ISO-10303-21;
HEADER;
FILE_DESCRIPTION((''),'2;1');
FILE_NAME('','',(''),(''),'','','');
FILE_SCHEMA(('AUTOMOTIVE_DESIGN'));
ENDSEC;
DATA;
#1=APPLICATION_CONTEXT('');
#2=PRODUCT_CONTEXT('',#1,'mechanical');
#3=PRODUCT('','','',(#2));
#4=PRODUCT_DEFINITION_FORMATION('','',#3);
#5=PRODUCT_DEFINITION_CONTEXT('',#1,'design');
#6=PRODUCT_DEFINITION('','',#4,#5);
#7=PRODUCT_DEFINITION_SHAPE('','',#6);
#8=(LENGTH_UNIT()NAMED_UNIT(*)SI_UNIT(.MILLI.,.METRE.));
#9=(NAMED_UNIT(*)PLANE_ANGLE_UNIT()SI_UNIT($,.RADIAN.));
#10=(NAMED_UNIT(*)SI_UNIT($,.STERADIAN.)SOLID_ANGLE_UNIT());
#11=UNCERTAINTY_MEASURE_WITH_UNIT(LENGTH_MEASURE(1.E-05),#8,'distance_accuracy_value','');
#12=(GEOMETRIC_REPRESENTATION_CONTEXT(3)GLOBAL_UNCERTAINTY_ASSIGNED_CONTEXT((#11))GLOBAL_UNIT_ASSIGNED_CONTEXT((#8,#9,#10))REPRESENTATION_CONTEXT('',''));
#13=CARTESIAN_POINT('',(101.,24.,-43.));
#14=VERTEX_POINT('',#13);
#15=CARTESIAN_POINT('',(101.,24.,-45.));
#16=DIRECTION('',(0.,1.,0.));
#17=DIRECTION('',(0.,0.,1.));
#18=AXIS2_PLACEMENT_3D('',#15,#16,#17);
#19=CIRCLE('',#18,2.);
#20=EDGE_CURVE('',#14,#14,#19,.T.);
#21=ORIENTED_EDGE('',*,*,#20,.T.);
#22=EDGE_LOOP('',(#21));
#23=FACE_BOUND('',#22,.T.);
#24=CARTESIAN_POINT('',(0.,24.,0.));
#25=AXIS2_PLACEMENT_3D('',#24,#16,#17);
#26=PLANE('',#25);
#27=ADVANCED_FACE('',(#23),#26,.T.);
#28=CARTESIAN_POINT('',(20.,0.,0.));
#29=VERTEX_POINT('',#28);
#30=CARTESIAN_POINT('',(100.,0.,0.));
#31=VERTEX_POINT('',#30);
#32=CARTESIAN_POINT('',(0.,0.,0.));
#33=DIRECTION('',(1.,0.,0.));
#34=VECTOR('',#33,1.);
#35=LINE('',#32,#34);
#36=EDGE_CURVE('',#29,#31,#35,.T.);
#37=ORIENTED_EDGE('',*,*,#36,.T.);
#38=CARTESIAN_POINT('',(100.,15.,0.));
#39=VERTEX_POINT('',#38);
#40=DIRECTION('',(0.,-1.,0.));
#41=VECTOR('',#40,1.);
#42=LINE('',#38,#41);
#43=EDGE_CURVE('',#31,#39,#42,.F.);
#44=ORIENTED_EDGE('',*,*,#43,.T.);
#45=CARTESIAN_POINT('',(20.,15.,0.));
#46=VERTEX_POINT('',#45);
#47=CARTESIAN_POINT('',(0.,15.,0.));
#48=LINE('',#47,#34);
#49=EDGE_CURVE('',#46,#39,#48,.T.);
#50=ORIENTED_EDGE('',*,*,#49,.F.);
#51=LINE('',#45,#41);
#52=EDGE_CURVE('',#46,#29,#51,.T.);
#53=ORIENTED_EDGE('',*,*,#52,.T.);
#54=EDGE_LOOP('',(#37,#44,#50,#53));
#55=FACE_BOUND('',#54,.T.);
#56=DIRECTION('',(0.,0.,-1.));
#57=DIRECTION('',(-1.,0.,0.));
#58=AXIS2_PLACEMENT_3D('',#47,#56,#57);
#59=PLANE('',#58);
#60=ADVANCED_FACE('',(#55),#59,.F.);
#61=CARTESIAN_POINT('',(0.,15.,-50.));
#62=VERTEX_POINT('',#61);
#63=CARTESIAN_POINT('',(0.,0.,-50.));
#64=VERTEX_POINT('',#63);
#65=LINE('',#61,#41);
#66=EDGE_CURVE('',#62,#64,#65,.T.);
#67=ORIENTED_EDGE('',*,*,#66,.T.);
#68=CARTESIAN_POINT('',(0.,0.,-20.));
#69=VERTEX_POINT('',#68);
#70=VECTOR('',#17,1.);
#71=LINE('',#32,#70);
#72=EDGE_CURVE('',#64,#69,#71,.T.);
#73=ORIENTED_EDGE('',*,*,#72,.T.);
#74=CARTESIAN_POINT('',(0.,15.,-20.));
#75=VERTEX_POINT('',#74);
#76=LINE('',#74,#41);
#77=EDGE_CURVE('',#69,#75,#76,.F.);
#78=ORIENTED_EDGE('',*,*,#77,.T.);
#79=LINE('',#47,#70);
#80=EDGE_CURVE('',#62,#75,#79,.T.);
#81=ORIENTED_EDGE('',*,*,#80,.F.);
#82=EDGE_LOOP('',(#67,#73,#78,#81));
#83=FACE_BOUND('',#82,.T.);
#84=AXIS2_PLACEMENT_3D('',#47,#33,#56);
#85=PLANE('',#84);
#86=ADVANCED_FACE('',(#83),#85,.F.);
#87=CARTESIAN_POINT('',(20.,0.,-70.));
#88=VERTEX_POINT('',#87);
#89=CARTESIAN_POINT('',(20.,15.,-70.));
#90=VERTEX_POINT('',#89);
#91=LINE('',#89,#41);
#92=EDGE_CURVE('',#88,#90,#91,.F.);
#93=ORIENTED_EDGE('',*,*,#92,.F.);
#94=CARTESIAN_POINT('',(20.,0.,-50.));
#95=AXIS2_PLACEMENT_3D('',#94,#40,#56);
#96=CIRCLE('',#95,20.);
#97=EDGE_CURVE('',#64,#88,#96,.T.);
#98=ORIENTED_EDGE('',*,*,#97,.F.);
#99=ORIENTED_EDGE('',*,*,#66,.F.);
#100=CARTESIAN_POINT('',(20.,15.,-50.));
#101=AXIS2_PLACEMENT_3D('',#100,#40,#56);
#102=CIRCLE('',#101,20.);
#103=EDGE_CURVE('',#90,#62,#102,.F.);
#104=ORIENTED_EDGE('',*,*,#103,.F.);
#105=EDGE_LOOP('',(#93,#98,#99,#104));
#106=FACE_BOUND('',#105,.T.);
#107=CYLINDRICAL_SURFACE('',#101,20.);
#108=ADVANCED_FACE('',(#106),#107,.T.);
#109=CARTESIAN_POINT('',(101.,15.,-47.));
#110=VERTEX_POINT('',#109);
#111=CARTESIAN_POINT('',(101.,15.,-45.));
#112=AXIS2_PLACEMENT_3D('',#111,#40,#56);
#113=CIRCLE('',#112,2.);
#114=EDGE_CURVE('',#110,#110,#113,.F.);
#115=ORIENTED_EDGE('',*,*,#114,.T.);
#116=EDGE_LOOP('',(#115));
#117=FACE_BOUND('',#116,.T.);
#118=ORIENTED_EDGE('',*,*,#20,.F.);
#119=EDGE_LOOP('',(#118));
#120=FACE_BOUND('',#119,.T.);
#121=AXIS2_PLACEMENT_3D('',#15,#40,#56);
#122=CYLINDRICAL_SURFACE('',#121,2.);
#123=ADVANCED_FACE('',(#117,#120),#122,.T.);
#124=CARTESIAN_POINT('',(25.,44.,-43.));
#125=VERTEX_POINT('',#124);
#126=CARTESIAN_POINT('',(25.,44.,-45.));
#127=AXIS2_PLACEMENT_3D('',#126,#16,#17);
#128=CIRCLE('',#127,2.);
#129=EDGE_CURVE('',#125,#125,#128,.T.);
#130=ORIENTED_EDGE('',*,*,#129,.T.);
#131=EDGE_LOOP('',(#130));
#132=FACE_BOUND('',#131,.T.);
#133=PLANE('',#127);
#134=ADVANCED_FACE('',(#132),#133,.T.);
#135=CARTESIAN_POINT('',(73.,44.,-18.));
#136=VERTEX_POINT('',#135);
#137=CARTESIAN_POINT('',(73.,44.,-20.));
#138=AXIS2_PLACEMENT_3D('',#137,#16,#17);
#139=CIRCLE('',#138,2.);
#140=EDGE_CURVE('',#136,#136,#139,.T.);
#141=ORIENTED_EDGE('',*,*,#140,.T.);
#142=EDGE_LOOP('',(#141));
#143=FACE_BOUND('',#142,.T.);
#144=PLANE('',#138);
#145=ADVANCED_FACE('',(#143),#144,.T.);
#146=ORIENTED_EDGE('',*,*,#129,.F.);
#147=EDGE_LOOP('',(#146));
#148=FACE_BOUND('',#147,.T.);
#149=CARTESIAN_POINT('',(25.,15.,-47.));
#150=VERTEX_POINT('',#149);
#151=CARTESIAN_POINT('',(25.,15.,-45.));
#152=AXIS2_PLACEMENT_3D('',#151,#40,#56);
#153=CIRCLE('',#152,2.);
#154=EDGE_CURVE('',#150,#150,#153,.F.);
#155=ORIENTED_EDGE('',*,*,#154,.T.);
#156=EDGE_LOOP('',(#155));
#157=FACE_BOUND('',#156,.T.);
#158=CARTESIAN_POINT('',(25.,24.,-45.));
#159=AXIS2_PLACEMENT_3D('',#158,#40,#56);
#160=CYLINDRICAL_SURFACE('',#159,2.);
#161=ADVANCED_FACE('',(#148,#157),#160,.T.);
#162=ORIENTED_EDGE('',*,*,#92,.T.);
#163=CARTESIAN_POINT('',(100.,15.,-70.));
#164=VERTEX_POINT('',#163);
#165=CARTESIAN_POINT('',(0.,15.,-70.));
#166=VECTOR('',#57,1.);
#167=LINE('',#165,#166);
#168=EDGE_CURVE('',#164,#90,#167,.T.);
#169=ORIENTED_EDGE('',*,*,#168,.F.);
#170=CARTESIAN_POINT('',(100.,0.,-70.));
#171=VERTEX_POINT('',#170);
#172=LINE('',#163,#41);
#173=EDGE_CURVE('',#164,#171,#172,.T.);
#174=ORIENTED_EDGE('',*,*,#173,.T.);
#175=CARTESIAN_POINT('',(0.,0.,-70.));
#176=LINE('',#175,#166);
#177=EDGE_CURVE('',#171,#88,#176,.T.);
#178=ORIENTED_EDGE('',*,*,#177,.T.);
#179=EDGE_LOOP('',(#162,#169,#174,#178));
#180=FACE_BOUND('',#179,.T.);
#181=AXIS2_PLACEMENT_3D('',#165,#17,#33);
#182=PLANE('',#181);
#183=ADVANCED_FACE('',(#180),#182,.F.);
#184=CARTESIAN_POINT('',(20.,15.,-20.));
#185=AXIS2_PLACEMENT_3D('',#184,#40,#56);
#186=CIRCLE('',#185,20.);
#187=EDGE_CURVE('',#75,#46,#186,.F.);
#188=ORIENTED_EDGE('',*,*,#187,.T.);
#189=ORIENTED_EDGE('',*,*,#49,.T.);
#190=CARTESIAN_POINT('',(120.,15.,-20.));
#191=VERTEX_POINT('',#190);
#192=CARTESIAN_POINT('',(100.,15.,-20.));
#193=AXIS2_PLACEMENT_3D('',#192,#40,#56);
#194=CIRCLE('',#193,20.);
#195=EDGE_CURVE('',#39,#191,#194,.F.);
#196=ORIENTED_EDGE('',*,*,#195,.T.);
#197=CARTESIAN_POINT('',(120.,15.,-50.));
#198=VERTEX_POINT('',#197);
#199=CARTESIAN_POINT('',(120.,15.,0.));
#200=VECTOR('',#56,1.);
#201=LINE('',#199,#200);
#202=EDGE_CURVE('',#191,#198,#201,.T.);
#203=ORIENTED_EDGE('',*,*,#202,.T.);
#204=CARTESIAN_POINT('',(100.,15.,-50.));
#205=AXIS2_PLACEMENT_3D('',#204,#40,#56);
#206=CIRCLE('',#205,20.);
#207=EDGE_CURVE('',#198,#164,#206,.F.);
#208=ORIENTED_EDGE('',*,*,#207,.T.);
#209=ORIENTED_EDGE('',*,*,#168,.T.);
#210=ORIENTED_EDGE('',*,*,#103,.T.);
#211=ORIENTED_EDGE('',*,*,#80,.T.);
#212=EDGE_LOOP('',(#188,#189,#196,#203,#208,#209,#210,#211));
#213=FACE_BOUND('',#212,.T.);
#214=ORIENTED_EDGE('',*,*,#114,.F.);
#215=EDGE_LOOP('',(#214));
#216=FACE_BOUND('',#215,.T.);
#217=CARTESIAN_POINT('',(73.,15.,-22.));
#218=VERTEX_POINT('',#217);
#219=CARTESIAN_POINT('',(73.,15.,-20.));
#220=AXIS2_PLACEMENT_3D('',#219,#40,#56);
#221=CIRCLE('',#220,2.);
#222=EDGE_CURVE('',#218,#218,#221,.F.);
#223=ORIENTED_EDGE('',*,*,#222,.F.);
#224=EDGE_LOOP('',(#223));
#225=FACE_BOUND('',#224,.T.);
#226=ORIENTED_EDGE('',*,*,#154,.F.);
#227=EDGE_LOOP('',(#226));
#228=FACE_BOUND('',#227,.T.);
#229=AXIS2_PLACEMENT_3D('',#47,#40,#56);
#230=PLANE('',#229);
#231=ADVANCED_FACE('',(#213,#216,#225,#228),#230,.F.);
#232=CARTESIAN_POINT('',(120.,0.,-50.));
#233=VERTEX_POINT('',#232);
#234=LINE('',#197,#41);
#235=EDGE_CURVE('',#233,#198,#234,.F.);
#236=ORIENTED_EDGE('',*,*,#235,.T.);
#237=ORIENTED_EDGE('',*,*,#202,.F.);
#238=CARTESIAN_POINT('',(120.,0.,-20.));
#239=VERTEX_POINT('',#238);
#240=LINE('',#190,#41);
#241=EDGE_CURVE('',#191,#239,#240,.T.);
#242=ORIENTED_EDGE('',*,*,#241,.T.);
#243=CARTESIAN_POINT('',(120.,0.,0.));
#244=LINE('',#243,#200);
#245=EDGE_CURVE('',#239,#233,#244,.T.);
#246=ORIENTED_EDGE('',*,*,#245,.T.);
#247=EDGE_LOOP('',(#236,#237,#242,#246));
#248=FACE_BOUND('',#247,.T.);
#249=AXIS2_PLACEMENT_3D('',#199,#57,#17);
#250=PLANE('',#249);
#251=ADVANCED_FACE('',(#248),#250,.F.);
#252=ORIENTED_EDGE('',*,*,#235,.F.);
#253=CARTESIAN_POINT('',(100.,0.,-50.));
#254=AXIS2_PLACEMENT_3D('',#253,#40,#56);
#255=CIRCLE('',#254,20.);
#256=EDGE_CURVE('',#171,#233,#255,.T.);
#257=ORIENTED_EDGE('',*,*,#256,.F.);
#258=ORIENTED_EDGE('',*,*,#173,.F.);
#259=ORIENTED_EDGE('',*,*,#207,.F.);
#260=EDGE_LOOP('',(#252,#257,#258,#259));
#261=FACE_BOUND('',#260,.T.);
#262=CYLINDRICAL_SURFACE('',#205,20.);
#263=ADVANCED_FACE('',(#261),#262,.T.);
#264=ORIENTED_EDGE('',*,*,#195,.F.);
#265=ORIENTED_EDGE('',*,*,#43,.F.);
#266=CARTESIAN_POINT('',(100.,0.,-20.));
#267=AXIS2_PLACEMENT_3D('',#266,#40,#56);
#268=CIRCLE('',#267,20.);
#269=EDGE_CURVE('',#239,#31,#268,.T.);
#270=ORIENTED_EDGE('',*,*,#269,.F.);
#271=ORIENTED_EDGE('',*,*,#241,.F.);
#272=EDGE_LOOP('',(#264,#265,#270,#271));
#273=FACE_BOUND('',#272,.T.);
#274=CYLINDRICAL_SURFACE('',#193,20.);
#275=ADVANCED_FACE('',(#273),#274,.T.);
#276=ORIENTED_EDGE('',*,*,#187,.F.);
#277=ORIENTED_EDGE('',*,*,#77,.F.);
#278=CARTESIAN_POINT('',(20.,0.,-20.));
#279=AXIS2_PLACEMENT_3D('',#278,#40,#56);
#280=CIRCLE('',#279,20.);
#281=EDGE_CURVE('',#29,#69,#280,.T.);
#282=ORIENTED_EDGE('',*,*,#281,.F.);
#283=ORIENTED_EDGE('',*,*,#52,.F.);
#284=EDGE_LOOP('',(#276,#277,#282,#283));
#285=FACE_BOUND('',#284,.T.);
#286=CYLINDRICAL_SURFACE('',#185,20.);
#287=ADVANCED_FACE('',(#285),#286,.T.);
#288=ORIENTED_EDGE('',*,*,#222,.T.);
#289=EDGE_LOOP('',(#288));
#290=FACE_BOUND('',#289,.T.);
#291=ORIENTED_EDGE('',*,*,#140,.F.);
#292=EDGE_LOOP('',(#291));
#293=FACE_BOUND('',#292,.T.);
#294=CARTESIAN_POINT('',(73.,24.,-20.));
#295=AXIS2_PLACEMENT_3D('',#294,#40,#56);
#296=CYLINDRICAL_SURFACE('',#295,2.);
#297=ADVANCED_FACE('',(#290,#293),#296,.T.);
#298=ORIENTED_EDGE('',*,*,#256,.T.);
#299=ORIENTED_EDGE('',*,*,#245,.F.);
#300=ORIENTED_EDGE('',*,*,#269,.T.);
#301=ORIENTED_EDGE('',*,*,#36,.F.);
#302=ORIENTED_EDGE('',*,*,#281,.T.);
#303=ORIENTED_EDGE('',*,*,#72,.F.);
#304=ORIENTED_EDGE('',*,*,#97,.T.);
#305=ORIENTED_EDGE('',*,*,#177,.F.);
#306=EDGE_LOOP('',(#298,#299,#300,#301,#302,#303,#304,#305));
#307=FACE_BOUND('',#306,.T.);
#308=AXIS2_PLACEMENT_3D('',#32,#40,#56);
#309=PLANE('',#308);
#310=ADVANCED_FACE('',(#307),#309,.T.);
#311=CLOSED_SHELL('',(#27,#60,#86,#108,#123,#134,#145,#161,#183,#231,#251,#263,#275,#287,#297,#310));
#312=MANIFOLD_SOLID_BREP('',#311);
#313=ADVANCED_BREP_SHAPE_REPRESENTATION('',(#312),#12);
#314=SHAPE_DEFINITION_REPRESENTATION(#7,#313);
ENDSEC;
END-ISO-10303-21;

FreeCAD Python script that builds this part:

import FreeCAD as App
import Part
import Sketcher

V = App.Vector


def edges_at(feature, points):
    """Names of the edges that pass closest to the given points."""
    edges = feature.Shape.Edges
    near = lambda p: min(range(len(edges)), key=lambda i: edges[i].distToShape(Part.Vertex(*p))[0])
    return sorted({f"Edge{near(p) + 1}" for p in points})


def add_polygon(sketch, points):
    """Adds a closed chain of lines whose ends are joined by coincident constraints."""
    first, n = sketch.GeometryCount, len(points)
    for a, b in zip(points, points[1:] + points[:1]):
        sketch.addGeometry(Part.LineSegment(App.Vector(*a, 0), App.Vector(*b, 0)), False)
    for i in range(n):
        sketch.addConstraint(Sketcher.Constraint("Coincident", first + i, 2, first + (i + 1) % n, 1))

doc = App.newDocument("Part")
body = doc.addObject("PartDesign::Body", "Body")

# Sketch on XZ plane
sketch1 = body.newObject("Sketcher::SketchObject", "Sketch")
sketch1.AttachmentSupport = (doc.getObject("XZ_Plane"), [""])
sketch1.MapMode = "FlatFace"
add_polygon(sketch1, [(0, -70), (0, 0), (120, 0), (120, -70)])  # lines 0-3
sketch1.addConstraint([
    Sketcher.Constraint("Vertical", 0),
    Sketcher.Constraint("Horizontal", 1),
    Sketcher.Constraint("Vertical", 2),
    Sketcher.Constraint("Horizontal", 3),
    Sketcher.Constraint("Coincident", 0, 2, -1, 1),
    Sketcher.Constraint("DistanceX", 1, 1, 1, 2, 120.0),
    Sketcher.Constraint("DistanceY", 0, 1, 0, 2, 70.0),
])
pad1 = body.newObject("PartDesign::Pad", "Pad")
pad1.Profile = sketch1
pad1.Length = 15
pad1.Reversed = True
doc.recompute()

fillet = body.newObject("PartDesign::Fillet", "Fillet")
fillet.Base = (pad1, edges_at(pad1, [
    (0, 7.5, -70),
    (120, 7.5, -70),
    (120, 7.5, 0),
    (0, 7.5, 0),
]))
fillet.Radius = 20

# Sketch on XZ plane
sketch2 = body.newObject("Sketcher::SketchObject", "Sketch001")
sketch2.AttachmentSupport = (doc.getObject("XZ_Plane"), [""])
sketch2.MapMode = "FlatFace"
sketch2.AttachmentOffset = App.Placement(V(0, 0, -15), App.Rotation())
sketch2.addGeometry([
    Part.Circle(V(25, -45, 0), V(0, 0, 1), 2),
    Part.Circle(V(73, -20, 0), V(0, 0, 1), 2),
    Part.Circle(V(101, -45, 0), V(0, 0, 1), 2),
], False)
sketch2.addConstraint([
    Sketcher.Constraint("Equal", 0, 1),
    Sketcher.Constraint("Equal", 1, 2),
    Sketcher.Constraint("Horizontal", 0, 3, 2, 3),
    Sketcher.Constraint("Diameter", 0, 4.0),
    Sketcher.Constraint("DistanceX", -1, 1, 0, 3, 25.0),
    Sketcher.Constraint("DistanceY", 0, 3, -1, 1, 45.0),
    Sketcher.Constraint("DistanceX", -1, 1, 1, 3, 73.0),
    Sketcher.Constraint("DistanceY", 1, 3, -1, 1, 20.0),
    Sketcher.Constraint("DistanceX", -1, 1, 2, 3, 101.0),
])
pad2 = body.newObject("PartDesign::Pad", "Pad001")
pad2.Profile = sketch2
pad2.Length = 9
pad2.Reversed = True

# Sketch on XZ plane
sketch3 = body.newObject("Sketcher::SketchObject", "Sketch002")
sketch3.AttachmentSupport = (doc.getObject("XZ_Plane"), [""])
sketch3.MapMode = "FlatFace"
sketch3.AttachmentOffset = App.Placement(V(0, 0, -24), App.Rotation())
sketch3.addGeometry([
    Part.Circle(V(25, -45, 0), V(0, 0, 1), 2),
    Part.Circle(V(73, -20, 0), V(0, 0, 1), 2),
], False)
sketch3.addConstraint([
    Sketcher.Constraint("Equal", 0, 1),
    Sketcher.Constraint("Diameter", 0, 4.0),
    Sketcher.Constraint("DistanceX", -1, 1, 0, 3, 25.0),
    Sketcher.Constraint("DistanceY", 0, 3, -1, 1, 45.0),
    Sketcher.Constraint("DistanceX", -1, 1, 1, 3, 73.0),
    Sketcher.Constraint("DistanceY", 1, 3, -1, 1, 20.0),
])
pad3 = body.newObject("PartDesign::Pad", "Pad002")
pad3.Profile = sketch3
pad3.Length = 20
pad3.Reversed = True

doc.recompute()
